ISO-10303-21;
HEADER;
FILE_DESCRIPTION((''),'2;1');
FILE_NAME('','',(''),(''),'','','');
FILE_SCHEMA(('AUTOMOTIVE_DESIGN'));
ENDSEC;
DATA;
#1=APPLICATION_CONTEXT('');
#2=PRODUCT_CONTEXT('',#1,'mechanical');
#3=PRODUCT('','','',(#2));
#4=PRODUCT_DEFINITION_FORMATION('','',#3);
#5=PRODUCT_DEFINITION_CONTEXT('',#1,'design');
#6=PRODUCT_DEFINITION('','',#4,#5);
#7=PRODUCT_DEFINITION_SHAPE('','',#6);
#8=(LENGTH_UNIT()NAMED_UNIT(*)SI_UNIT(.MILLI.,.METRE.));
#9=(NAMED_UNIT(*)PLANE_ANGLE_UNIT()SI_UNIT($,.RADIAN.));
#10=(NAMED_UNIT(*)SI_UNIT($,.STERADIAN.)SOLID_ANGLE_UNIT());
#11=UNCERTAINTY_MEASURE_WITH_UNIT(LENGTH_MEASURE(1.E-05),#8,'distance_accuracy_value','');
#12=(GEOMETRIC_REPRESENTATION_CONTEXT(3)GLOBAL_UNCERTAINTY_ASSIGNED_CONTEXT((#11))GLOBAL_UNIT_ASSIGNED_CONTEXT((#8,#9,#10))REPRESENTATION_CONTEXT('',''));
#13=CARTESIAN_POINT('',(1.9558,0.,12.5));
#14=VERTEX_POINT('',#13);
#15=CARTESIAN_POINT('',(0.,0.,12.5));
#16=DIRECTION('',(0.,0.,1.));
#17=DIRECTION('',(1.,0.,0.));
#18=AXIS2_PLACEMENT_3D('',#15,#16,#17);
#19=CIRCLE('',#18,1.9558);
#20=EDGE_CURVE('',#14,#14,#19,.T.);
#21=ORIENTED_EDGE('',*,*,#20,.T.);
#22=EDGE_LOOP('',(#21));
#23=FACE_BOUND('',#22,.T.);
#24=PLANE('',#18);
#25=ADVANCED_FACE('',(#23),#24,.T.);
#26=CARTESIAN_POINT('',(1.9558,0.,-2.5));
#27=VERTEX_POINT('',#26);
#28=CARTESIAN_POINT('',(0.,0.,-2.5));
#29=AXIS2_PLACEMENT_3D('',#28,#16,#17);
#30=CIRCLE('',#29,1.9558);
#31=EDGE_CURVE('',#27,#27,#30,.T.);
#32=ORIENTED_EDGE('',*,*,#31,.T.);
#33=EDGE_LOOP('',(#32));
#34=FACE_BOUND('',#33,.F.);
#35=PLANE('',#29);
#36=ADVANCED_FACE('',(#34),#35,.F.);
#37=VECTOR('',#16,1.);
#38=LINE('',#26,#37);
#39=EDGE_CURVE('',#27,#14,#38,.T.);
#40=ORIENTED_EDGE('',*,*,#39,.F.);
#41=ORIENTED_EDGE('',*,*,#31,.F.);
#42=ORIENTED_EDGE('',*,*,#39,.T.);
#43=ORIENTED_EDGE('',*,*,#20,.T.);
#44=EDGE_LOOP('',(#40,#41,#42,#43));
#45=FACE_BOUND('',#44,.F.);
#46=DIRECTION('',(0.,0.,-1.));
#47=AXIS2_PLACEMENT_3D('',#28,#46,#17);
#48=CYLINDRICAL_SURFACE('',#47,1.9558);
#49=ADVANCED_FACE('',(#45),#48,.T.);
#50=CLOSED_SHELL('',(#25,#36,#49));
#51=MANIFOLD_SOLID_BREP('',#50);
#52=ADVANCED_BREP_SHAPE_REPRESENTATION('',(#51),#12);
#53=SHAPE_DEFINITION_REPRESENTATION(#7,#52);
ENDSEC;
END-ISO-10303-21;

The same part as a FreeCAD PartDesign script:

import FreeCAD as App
import Part
import Sketcher
Q = App.Units.Quantity

doc = App.newDocument("Part")
body = doc.addObject("PartDesign::Body", "Body")

# Sketch on XY plane
sketch1 = body.newObject("Sketcher::SketchObject", "Sketch")
sketch1.AttachmentSupport = (doc.getObject("XY_Plane"), [""])
sketch1.MapMode = "FlatFace"
sketch1.AttachmentOffset = App.Placement(App.Vector(0, 0, -2.5), App.Rotation())
sketch1.addGeometry(Part.Circle(App.Vector(0, 0, 0), App.Vector(0, 0, 1), 2), False)
sketch1.addConstraint([
    Sketcher.Constraint("Coincident", 0, 3, -1, 1),
    Sketcher.Constraint("Diameter", 0, Q("3.9116 mm")),
])
pad1 = body.newObject("PartDesign::Pad", "Pad")
pad1.Profile = sketch1
pad1.Length = 15

doc.recompute()
